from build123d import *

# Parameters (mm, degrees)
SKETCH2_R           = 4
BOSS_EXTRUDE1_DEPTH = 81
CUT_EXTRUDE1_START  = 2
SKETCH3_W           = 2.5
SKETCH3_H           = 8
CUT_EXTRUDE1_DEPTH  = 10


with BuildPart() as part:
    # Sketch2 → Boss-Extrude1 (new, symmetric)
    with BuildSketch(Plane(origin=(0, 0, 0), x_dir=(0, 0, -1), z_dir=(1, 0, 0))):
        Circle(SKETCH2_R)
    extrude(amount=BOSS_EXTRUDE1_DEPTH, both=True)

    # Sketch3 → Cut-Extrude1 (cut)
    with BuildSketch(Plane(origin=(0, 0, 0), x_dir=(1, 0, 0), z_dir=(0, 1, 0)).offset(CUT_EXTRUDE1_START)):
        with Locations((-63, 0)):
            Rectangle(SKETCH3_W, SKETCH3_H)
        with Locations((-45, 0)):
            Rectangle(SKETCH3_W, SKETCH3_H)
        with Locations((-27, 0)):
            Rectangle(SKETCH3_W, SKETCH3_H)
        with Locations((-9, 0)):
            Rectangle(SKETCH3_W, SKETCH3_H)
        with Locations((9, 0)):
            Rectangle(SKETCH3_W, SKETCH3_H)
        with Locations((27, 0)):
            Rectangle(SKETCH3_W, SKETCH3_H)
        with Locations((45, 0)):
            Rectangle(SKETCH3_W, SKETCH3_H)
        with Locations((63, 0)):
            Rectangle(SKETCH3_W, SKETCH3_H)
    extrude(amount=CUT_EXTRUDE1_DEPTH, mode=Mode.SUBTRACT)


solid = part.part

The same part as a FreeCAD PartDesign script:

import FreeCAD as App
import Part
import Sketcher
from FreeCAD import Vector
Q = App.Units.Quantity


def add_polygon(sketch, points):
    """Adds a closed chain of lines whose ends are joined by coincident constraints."""
    first, n = sketch.GeometryCount, len(points)
    for a, b in zip(points, points[1:] + points[:1]):
        sketch.addGeometry(Part.LineSegment(App.Vector(*a, 0), App.Vector(*b, 0)), False)
    for i in range(n):
        sketch.addConstraint(Sketcher.Constraint("Coincident", first + i, 2, first + (i + 1) % n, 1))

doc = App.newDocument("Part")
body = doc.addObject("PartDesign::Body", "Body")

sketch1 = doc.addObject("Sketcher::SketchObject", "Sketch")
body.addObject(sketch1)
sketch1.AttachmentSupport = (doc.YZ_Plane, [""])
sketch1.MapMode = "FlatFace"
sketch1.addGeometry(Part.Circle(Vector(0, 0, 0), Vector(0, 0, 1), 4), False)
sketch1.addConstraint([
    Sketcher.Constraint("Coincident", 0, 3, -1, 1),
    Sketcher.Constraint("Diameter", 0, Q("8 mm")),
])
pad1 = doc.addObject("PartDesign::Pad", "Pad")
body.addObject(pad1)
pad1.Profile = sketch1
pad1.Length = 162
pad1.Midplane = True

sketch2 = doc.addObject("Sketcher::SketchObject", "Sketch001")
body.addObject(sketch2)
sketch2.AttachmentSupport = (doc.XZ_Plane, [""])
sketch2.MapMode = "FlatFace"
sketch2.AttachmentOffset = App.Placement(Vector(0, 0, -2), App.Rotation())
add_polygon(sketch2, [(-64.2, -4), (-64.2, 4), (-61.8, 4), (-61.8, -4)])
add_polygon(sketch2, [(-46.2, -4), (-46.2, 4), (-43.8, 4), (-43.8, -4)])
add_polygon(sketch2, [(-28.2, -4), (-28.2, 4), (-25.8, 4), (-25.8, -4)])
add_polygon(sketch2, [(-10.2, -4), (-10.2, 4), (-7.8, 4), (-7.8, -4)])
add_polygon(sketch2, [(7.8, -4), (7.8, 4), (10.2, 4), (10.2, -4)])
add_polygon(sketch2, [(25.8, -4), (25.8, 4), (28.2, 4), (28.2, -4)])
add_polygon(sketch2, [(43.8, -4), (43.8, 4), (46.2, 4), (46.2, -4)])
add_polygon(sketch2, [(61.8, -4), (61.8, 4), (64.2, 4), (64.2, -4)])
sketch2.addConstraint([
    Sketcher.Constraint("Vertical", 0),
    Sketcher.Constraint("Horizontal", 1),
    Sketcher.Constraint("Vertical", 2),
    Sketcher.Constraint("Horizontal", 3),
    Sketcher.Constraint("Vertical", 4),
    Sketcher.Constraint("Horizontal", 5),
    Sketcher.Constraint("Vertical", 6),
    Sketcher.Constraint("Horizontal", 7),
    Sketcher.Constraint("Vertical", 8),
    Sketcher.Constraint("Horizontal", 9),
    Sketcher.Constraint("Vertical", 10),
    Sketcher.Constraint("Horizontal", 11),
    Sketcher.Constraint("Vertical", 12),
    Sketcher.Constraint("Horizontal", 13),
    Sketcher.Constraint("Vertical", 14),
    Sketcher.Constraint("Horizontal", 15),
    Sketcher.Constraint("Vertical", 16),
    Sketcher.Constraint("Horizontal", 17),
    Sketcher.Constraint("Vertical", 18),
    Sketcher.Constraint("Horizontal", 19),
    Sketcher.Constraint("Vertical", 20),
    Sketcher.Constraint("Horizontal", 21),
    Sketcher.Constraint("Vertical", 22),
    Sketcher.Constraint("Horizontal", 23),
    Sketcher.Constraint("Vertical", 24),
    Sketcher.Constraint("Horizontal", 25),
    Sketcher.Constraint("Vertical", 26),
    Sketcher.Constraint("Horizontal", 27),
    Sketcher.Constraint("Vertical", 28),
    Sketcher.Constraint("Horizontal", 29),
    Sketcher.Constraint("Vertical", 30),
    Sketcher.Constraint("Horizontal", 31),
    Sketcher.Constraint("Symmetric", 14, 2, 16, 2, -1, 1),
    Sketcher.Constraint("Symmetric", 12, 2, 18, 2, -1, 1),
    Sketcher.Constraint("Symmetric", 10, 2, 20, 2, -1, 1),
    Sketcher.Constraint("Symmetric", 8, 2, 22, 2, -1, 1),
    Sketcher.Constraint("Symmetric", 6, 2, 24, 2, -1, 1),
    Sketcher.Constraint("Symmetric", 4, 2, 26, 2, -1, 1),
    Sketcher.Constraint("Symmetric", 2, 2, 28, 2, -1, 1),
    Sketcher.Constraint("Symmetric", 0, 2, 30, 2, -1, 1),
    Sketcher.Constraint("Horizontal", 1, 2, 4, 2),
    Sketcher.Constraint("Horizontal", 3, 2, 6, 2),
    Sketcher.Constraint("Horizontal", 5, 2, 8, 2),
    Sketcher.Constraint("Horizontal", 7, 2, 10, 2),
    Sketcher.Constraint("Horizontal", 9, 2, 12, 2),
    Sketcher.Constraint("Horizontal", 11, 2, 14, 2),
    Sketcher.Constraint("Horizontal", 13, 2, 16, 2),
    Sketcher.Constraint("Equal", 3, 5),
    Sketcher.Constraint("Equal", 7, 9),
    Sketcher.Constraint("Equal", 11, 13),
    Sketcher.Constraint("DistanceY", 0, 1, 0, 2, Q("8 mm")),
    Sketcher.Constraint("DistanceX", 1, 1, 1, 2, Q("2.5 mm")),
    Sketcher.Constraint("DistanceX", 0, 2, 4, 2, Q("18 mm")),
    Sketcher.Constraint("DistanceX", 4, 2, 8, 2, Q("18 mm")),
    Sketcher.Constraint("DistanceX", 8, 2, 12, 2, Q("18 mm")),
    Sketcher.Constraint("DistanceX", 12, 2, 16, 2, Q("18 mm")),
])
pocket1 = doc.addObject("PartDesign::Pocket", "Pocket")
body.addObject(pocket1)
pocket1.Profile = sketch2
pocket1.Length = 10

doc.recompute()
